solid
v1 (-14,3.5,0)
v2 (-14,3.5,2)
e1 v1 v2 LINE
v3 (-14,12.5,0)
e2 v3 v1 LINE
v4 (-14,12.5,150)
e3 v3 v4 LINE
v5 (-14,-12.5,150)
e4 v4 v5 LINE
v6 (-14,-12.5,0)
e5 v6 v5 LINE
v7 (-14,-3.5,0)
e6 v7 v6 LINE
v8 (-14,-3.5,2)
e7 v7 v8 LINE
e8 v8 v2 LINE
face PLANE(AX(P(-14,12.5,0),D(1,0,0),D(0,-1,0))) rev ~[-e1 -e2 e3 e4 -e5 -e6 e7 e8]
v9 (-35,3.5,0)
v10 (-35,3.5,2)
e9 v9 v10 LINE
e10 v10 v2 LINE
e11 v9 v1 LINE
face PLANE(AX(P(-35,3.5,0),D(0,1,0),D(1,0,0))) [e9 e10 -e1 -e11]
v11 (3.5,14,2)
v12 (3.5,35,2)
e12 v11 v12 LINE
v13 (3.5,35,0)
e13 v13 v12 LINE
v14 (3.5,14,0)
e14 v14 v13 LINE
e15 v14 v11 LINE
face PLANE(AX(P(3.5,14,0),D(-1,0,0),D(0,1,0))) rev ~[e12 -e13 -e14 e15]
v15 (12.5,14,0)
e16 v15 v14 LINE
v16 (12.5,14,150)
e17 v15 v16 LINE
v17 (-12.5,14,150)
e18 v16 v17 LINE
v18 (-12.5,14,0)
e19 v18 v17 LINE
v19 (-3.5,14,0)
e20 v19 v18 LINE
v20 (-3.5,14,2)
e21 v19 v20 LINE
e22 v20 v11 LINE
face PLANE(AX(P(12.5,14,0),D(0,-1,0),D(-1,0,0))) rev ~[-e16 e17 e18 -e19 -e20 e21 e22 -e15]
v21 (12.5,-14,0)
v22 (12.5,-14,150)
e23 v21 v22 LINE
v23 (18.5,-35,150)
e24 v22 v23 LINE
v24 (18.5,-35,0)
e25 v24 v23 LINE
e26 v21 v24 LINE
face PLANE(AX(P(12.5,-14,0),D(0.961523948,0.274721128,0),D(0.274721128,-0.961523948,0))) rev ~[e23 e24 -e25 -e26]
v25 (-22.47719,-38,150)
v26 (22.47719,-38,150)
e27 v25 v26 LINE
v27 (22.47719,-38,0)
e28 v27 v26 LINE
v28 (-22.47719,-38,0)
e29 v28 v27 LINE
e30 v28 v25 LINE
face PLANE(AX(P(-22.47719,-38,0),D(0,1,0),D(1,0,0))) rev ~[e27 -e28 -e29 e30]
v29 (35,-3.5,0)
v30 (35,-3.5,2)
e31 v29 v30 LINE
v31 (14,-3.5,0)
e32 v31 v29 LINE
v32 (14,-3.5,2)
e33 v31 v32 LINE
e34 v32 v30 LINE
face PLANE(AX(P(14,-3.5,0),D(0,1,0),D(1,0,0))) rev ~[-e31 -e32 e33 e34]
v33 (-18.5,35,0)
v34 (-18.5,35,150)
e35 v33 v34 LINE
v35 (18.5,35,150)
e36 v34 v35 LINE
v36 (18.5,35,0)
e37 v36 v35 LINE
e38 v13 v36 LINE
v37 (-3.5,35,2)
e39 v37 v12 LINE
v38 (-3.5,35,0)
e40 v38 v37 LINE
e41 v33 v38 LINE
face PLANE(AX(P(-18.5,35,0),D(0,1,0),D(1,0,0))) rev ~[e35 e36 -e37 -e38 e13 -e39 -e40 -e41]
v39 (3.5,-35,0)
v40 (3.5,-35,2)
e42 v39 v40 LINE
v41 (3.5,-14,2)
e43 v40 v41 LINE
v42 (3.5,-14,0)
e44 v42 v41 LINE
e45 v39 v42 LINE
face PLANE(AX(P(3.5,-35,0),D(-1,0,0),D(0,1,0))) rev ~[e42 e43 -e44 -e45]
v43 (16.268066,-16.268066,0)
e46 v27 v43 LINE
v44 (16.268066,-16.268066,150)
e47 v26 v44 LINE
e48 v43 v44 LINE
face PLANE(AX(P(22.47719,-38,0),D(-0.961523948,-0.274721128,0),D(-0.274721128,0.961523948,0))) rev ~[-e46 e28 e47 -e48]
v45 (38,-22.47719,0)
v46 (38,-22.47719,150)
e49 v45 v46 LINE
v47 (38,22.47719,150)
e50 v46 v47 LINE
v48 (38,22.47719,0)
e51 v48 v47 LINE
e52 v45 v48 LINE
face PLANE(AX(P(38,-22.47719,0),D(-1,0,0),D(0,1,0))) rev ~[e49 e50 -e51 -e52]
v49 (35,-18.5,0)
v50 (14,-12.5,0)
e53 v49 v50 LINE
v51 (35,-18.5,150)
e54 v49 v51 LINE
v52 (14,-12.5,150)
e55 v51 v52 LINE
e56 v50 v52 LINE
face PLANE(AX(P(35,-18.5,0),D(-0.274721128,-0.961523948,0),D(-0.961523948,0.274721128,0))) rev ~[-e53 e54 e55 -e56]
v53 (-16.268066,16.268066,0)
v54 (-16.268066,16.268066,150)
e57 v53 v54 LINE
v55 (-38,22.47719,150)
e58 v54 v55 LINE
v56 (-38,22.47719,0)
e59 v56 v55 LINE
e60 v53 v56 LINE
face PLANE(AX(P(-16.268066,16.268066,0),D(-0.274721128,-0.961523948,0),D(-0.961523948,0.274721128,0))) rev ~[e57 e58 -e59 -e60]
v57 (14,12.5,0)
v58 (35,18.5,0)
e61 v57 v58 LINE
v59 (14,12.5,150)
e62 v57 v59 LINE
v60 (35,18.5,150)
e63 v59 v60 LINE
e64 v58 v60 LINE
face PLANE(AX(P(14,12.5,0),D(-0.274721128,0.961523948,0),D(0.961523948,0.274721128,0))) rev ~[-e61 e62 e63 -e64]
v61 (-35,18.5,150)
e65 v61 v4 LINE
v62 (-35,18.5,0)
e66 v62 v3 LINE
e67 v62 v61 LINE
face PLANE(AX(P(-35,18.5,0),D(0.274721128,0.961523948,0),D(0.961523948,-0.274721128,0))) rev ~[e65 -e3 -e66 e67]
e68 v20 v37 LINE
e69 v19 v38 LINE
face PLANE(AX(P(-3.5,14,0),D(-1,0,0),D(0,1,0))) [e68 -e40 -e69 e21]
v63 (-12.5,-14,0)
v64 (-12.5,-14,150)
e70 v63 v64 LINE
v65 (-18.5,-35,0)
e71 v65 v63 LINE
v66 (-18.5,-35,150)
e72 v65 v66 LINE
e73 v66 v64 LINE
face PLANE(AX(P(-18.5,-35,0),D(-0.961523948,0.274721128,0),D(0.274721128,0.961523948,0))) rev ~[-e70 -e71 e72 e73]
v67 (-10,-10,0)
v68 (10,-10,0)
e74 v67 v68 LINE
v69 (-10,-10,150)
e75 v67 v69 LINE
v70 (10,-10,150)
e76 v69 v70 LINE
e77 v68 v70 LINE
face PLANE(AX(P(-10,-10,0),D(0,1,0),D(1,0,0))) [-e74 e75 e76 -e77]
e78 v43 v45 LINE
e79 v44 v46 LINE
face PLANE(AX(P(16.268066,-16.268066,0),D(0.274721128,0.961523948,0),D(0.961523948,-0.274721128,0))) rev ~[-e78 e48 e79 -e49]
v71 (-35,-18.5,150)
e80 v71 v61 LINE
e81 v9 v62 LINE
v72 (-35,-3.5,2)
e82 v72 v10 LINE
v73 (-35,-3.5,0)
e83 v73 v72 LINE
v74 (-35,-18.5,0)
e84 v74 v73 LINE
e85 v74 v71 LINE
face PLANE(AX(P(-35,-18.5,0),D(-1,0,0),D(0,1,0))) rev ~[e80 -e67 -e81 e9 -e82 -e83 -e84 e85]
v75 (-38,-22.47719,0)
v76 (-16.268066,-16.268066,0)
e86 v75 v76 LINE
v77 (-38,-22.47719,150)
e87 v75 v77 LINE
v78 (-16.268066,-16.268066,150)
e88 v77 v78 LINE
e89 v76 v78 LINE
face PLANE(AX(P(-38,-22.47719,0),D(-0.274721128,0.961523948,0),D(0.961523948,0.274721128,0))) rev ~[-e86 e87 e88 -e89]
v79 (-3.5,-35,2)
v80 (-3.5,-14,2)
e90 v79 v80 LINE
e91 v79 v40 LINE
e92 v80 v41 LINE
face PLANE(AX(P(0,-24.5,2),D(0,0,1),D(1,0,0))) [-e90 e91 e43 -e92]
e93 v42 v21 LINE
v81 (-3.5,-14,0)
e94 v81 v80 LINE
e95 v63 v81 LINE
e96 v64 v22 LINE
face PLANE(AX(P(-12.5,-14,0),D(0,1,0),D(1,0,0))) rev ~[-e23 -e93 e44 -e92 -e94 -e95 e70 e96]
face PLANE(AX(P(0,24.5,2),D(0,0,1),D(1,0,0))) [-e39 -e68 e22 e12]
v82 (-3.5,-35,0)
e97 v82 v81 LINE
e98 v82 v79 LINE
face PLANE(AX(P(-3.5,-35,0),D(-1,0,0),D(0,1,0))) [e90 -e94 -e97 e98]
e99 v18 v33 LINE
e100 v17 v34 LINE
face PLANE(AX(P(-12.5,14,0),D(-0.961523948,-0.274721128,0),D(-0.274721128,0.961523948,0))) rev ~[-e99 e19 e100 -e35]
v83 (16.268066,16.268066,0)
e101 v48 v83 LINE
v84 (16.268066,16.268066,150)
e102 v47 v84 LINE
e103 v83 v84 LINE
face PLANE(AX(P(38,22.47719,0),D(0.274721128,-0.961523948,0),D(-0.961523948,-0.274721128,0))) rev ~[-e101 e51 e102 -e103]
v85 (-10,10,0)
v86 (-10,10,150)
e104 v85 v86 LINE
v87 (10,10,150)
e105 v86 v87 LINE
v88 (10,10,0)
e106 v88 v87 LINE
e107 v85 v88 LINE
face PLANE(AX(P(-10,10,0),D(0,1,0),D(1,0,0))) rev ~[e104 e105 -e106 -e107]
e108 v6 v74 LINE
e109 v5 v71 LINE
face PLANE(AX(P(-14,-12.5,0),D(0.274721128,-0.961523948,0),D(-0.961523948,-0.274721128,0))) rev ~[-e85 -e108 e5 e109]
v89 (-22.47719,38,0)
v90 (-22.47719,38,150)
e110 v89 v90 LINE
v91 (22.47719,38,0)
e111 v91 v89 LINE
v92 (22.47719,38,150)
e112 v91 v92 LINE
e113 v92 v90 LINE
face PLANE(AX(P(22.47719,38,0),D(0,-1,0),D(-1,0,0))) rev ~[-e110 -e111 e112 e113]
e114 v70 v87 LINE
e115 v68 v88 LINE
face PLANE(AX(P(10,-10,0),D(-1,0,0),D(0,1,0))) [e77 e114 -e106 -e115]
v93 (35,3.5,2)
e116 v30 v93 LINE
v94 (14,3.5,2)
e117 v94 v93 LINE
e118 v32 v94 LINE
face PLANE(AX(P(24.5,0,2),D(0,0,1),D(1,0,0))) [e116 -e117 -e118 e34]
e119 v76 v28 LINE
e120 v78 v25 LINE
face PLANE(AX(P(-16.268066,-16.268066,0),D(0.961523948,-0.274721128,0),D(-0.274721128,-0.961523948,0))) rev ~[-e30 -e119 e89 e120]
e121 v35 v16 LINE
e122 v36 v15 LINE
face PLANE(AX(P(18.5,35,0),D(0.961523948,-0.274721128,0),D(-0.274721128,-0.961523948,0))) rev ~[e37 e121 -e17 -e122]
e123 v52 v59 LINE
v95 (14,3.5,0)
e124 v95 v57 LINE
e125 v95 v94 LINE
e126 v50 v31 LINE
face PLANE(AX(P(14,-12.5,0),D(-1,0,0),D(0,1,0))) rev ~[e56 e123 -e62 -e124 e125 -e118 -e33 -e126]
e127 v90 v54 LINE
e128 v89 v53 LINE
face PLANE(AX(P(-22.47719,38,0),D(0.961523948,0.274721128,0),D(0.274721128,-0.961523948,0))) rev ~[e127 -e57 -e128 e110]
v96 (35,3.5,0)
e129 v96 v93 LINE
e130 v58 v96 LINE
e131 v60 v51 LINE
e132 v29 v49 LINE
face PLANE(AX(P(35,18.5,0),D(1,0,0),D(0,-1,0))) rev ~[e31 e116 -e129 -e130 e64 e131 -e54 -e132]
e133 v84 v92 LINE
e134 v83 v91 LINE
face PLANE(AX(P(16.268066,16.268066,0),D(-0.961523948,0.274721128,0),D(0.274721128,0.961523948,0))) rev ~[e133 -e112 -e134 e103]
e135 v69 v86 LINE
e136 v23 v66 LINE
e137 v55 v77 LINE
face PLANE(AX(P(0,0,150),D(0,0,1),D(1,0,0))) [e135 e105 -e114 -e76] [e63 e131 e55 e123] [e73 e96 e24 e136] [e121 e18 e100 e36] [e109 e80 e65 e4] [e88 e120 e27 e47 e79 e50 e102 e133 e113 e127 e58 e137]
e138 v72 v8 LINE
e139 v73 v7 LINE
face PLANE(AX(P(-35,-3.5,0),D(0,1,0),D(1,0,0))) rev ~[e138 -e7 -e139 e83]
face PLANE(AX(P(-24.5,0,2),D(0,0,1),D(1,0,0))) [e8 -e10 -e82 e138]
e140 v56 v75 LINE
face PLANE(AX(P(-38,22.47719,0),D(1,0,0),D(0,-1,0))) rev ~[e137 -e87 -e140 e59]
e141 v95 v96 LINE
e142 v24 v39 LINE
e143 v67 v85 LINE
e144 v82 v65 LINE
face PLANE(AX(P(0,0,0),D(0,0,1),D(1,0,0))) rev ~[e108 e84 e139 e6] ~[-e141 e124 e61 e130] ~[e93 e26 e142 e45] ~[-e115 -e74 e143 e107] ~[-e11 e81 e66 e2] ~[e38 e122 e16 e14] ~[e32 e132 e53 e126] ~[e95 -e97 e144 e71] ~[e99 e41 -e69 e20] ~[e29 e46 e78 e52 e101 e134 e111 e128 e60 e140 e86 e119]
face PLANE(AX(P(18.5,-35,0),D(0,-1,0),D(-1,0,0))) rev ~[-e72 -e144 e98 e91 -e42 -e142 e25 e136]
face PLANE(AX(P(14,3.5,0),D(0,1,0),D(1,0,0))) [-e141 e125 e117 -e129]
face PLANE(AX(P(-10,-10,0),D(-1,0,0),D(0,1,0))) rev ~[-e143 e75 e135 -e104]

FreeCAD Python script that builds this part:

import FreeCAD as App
import Part
import Sketcher
Q = App.Units.Quantity


def add_polygon(sketch, points):
    """Adds a closed chain of lines whose ends are joined by coincident constraints."""
    first, n = sketch.GeometryCount, len(points)
    for a, b in zip(points, points[1:] + points[:1]):
        sketch.addGeometry(Part.LineSegment(App.Vector(*a, 0), App.Vector(*b, 0)), False)
    for i in range(n):
        sketch.addConstraint(Sketcher.Constraint("Coincident", first + i, 2, first + (i + 1) % n, 1))

doc = App.newDocument("Part")
body = doc.addObject("PartDesign::Body", "Body")

sketch1 = doc.addObject("Sketcher::SketchObject", "Sketch")
body.addObject(sketch1)
sketch1.AttachmentSupport = (doc.XY_Plane, [""])
sketch1.MapMode = "FlatFace"
add_polygon(sketch1, [(22.47719, 38), (-22.47719, 38), (-16.268066, 16.268066), (-38, 22.47719), (-38, -22.47719), (-16.268066, -16.268066), (-22.47719, -38), (22.47719, -38), (16.268066, -16.268066), (38, -22.47719), (38, 22.47719), (16.268066, 16.268066)])
add_polygon(sketch1, [(-18.5, -35), (-12.5, -14), (12.5, -14), (18.5, -35)])
add_polygon(sketch1, [(-35, 18.5), (-14, 12.5), (-14, -12.5), (-35, -18.5)])
add_polygon(sketch1, [(10, -10), (-10, -10), (-10, 10), (10, 10)])
add_polygon(sketch1, [(35, -18.5), (14, -12.5), (14, 12.5), (35, 18.5)])
add_polygon(sketch1, [(18.5, 35), (12.5, 14), (-12.5, 14), (-18.5, 35)])
sketch1.addConstraint([
    Sketcher.Constraint("Horizontal", 0),
    Sketcher.Constraint("Vertical", 3),
    Sketcher.Constraint("Horizontal", 6),
    Sketcher.Constraint("Vertical", 9),
    Sketcher.Constraint("Horizontal", 13),
    Sketcher.Constraint("Horizontal", 15),
    Sketcher.Constraint("Vertical", 17),
    Sketcher.Constraint("Vertical", 19),
    Sketcher.Constraint("Horizontal", 20),
    Sketcher.Constraint("Vertical", 21),
    Sketcher.Constraint("Horizontal", 22),
    Sketcher.Constraint("Vertical", 23),
    Sketcher.Constraint("Vertical", 25),
    Sketcher.Constraint("Vertical", 27),
    Sketcher.Constraint("Horizontal", 29),
    Sketcher.Constraint("Horizontal", 31),
    Sketcher.Constraint("Symmetric", 0, 2, 6, 2, -1, 1),
    Sketcher.Constraint("Symmetric", 1, 2, 7, 2, -1, 1),
    Sketcher.Constraint("Symmetric", 2, 2, 8, 2, -1, 1),
    Sketcher.Constraint("Symmetric", 4, 2, 10, 2, -1, 1),
    Sketcher.Constraint("Symmetric", 20, 2, 22, 2, -1, 1),
    Sketcher.Constraint("Symmetric", 16, 2, 24, 2, -1, 1),
    Sketcher.Constraint("Symmetric", 18, 2, 26, 2, -1, 1),
    Sketcher.Constraint("Symmetric", 12, 2, 28, 2, -1, 1),
    Sketcher.Constraint("Symmetric", 14, 2, 30, 2, -1, 1),
    Sketcher.Constraint("Symmetric", 4, 2, 7, 2, -2),
    Sketcher.Constraint("Perpendicular", 1, 4),
    Sketcher.Constraint("Perpendicular", 2, 5),
    Sketcher.Constraint("Perpendicular", 7, 10),
    Sketcher.Constraint("Perpendicular", 8, 11),
    Sketcher.Constraint("Parallel", 11, 12),
    Sketcher.Constraint("Perpendicular", 10, 14),
    Sketcher.Constraint("Perpendicular", 12, 16),
    Sketcher.Constraint("Perpendicular", 14, 18),
    Sketcher.Constraint("Parallel", 16, 24),
    Sketcher.Constraint("Parallel", 18, 26),
    Sketcher.Constraint("Perpendicular", 24, 28),
    Sketcher.Constraint("Perpendicular", 26, 30),
    Sketcher.Constraint("Horizontal", 3, 2, 8, 2),
    Sketcher.Constraint("Horizontal", 17, 2, 24, 2),
    Sketcher.Constraint("Vertical", 13, 2, 28, 2),
    Sketcher.Constraint("Equal", 6, 3),
    Sketcher.Constraint("Equal", 29, 17),
    Sketcher.Constraint("Equal", 31, 19),
    Sketcher.Constraint("Equal", 22, 21),
    Sketcher.Constraint("Equal", 1, 2),
    Sketcher.Constraint("DistanceX", 13, 1, 13, 2, Q("25 mm")),
    Sketcher.Constraint("DistanceX", 15, 2, 15, 1, Q("37 mm")),
    Sketcher.Constraint("DistanceX", 20, 2, 20, 1, Q("20 mm")),
    Sketcher.Constraint("DistanceY", -1, 1, 0, 2, Q("38 mm")),
    Sketcher.Constraint("DistanceY", 12, 2, -1, 1, Q("14 mm")),
    Sketcher.Constraint("DistanceY", 14, 2, -1, 1, Q("35 mm")),
    Sketcher.Constraint("DistanceX", 16, 2, -1, 1, Q("14 mm")),
    Sketcher.Constraint("DistanceX", 0, 2, 0, 1, Q("44.95438 mm")),
])
pad1 = doc.addObject("PartDesign::Pad", "Pad")
body.addObject(pad1)
pad1.Profile = sketch1
pad1.Length = 150

sketch2 = doc.addObject("Sketcher::SketchObject", "Sketch001")
body.addObject(sketch2)
sketch2.AttachmentSupport = (doc.XY_Plane, [""])
sketch2.MapMode = "FlatFace"
add_polygon(sketch2, [(-3.5, 35), (-3.5, 14), (3.5, 14), (3.5, 35)])
add_polygon(sketch2, [(14, 3.5), (14, -3.5), (35, -3.5), (35, 3.5)])
add_polygon(sketch2, [(-3.5, -14), (-3.5, -35), (3.5, -35), (3.5, -14)])
add_polygon(sketch2, [(-35, 3.5), (-35, -3.5), (-14, -3.5), (-14, 3.5)])
sketch2.addConstraint([
    Sketcher.Constraint("Vertical", 0),
    Sketcher.Constraint("Horizontal", 1),
    Sketcher.Constraint("Vertical", 2),
    Sketcher.Constraint("Horizontal", 3),
    Sketcher.Constraint("Vertical", 4),
    Sketcher.Constraint("Horizontal", 5),
    Sketcher.Constraint("Vertical", 6),
    Sketcher.Constraint("Horizontal", 7),
    Sketcher.Constraint("Vertical", 8),
    Sketcher.Constraint("Horizontal", 9),
    Sketcher.Constraint("Vertical", 10),
    Sketcher.Constraint("Horizontal", 11),
    Sketcher.Constraint("Vertical", 12),
    Sketcher.Constraint("Horizontal", 13),
    Sketcher.Constraint("Vertical", 14),
    Sketcher.Constraint("Horizontal", 15),
    Sketcher.Constraint("Symmetric", 2, 2, 8, 2, -1, 1),
    Sketcher.Constraint("Symmetric", 0, 2, 10, 2, -1, 1),
    Sketcher.Constraint("Symmetric", 6, 2, 12, 2, -1, 1),
    Sketcher.Constraint("Symmetric", 4, 2, 14, 2, -1, 1),
    Sketcher.Constraint("Horizontal", 5, 2, 12, 2),
    Sketcher.Constraint("Vertical", 3, 2, 8, 2),
    Sketcher.Constraint("Equal", 15, 0),
    Sketcher.Constraint("Equal", 11, 4),
    Sketcher.Constraint("DistanceX", 1, 1, 1, 2, Q("7 mm")),
    Sketcher.Constraint("DistanceX", 5, 1, 5, 2, Q("21 mm")),
    Sketcher.Constraint("DistanceY", -1, 1, 0, 2, Q("14 mm")),
    Sketcher.Constraint("DistanceX", -1, 1, 4, 2, Q("14 mm")),
])
pad2 = doc.addObject("PartDesign::Pad", "Pad001")
body.addObject(pad2)
pad2.Profile = sketch2
pad2.Length = 2

doc.recompute()
